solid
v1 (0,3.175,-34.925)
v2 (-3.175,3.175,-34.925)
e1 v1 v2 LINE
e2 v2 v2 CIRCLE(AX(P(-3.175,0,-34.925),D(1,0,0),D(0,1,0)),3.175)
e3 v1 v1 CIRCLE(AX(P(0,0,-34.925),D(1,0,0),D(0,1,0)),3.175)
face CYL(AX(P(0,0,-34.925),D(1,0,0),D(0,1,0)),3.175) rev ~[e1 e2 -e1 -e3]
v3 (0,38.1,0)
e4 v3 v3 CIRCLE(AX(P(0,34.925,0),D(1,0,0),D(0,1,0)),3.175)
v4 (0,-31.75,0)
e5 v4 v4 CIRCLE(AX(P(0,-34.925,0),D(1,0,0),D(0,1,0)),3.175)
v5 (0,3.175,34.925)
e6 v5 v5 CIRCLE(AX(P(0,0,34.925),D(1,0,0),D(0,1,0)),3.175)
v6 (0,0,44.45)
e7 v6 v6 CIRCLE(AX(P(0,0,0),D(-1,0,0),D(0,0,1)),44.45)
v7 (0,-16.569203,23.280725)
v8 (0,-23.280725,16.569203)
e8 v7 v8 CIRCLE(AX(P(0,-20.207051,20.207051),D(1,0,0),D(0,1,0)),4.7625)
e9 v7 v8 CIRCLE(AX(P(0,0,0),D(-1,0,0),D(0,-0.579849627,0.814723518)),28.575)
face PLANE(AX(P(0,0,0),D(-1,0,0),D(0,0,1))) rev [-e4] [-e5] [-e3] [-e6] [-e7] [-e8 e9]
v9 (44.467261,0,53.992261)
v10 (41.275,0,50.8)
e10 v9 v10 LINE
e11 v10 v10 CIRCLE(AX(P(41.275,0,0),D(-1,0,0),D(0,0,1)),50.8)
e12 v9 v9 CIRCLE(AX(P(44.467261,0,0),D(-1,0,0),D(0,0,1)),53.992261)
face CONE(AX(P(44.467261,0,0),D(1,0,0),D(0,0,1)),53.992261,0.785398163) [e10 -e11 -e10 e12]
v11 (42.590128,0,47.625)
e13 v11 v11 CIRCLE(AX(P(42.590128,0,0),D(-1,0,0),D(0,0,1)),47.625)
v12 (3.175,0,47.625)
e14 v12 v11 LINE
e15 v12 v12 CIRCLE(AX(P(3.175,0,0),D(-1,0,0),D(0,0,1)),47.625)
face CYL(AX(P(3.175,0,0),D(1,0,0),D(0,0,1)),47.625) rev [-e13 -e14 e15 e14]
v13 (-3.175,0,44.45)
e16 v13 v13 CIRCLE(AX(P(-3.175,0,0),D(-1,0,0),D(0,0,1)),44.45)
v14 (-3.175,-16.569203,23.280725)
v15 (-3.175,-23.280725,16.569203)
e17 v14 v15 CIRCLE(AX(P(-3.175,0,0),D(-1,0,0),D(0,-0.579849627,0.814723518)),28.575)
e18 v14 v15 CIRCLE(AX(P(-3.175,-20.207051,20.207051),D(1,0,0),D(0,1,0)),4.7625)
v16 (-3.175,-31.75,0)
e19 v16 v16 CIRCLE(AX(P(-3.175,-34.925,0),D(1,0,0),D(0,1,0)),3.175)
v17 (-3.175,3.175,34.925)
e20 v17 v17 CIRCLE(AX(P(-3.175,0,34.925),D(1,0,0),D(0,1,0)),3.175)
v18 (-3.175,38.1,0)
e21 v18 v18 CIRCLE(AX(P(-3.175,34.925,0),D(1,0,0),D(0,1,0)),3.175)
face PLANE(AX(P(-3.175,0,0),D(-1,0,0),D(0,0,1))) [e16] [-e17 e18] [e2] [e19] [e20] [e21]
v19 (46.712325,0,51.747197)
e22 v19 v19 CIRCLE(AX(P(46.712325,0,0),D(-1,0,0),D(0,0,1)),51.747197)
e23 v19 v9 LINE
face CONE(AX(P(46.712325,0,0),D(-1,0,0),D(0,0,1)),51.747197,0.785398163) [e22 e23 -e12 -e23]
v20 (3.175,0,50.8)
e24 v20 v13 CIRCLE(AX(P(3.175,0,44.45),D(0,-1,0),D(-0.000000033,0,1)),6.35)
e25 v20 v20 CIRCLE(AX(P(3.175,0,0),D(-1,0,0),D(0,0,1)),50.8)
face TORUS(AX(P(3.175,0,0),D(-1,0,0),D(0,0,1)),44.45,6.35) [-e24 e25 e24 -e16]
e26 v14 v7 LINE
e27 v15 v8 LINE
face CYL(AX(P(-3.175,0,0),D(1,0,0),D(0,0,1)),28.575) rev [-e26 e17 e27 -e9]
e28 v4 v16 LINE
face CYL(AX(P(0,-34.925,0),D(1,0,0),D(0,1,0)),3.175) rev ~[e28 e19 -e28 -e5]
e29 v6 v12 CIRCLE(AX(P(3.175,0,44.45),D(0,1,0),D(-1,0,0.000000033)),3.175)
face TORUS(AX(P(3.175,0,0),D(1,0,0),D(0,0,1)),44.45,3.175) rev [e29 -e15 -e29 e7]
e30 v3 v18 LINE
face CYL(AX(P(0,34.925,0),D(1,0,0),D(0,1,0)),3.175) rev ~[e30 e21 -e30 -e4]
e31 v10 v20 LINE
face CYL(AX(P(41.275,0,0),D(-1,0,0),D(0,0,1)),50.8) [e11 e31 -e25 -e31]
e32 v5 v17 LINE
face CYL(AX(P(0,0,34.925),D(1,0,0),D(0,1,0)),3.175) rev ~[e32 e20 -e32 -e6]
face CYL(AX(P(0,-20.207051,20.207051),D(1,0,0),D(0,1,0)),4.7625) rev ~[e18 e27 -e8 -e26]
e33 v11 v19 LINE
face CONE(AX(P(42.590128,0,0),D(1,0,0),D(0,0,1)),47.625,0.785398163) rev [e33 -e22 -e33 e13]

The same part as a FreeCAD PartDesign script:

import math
import FreeCAD as App
import Part
import Sketcher
from FreeCAD import Vector
Q = App.Units.Quantity

doc = App.newDocument("Part")
body = doc.addObject("PartDesign::Body", "Body")

sketch1 = body.newObject("Sketcher::SketchObject", "Sketch")
sketch1.AttachmentSupport = (doc.getObject("XZ_Plane"), [""])
sketch1.MapMode = "FlatFace"
sketch1.addGeometry([
    Part.LineSegment(Vector(0, 28.6, 0), Vector(0, 44.5, 0)),
    Part.ArcOfCircle(Part.Circle(Vector(3.2, 44.4, 0), Vector(0, 0, 1), 3.2), math.radians(90), math.radians(180)),
    Part.LineSegment(Vector(3.2, 47.6, 0), Vector(42.6, 47.6, 0)),
    Part.LineSegment(Vector(42.6, 47.6, 0), Vector(46.7, 51.7, 0)),
    Part.LineSegment(Vector(46.7, 51.7, 0), Vector(44.5, 54, 0)),
    Part.LineSegment(Vector(44.5, 54, 0), Vector(41.3, 50.8, 0)),
    Part.LineSegment(Vector(41.3, 50.8, 0), Vector(3.2, 50.8, 0)),
    Part.ArcOfCircle(Part.Circle(Vector(3.2, 44.4, 0), Vector(0, 0, 1), 6.4), math.radians(90), math.radians(180)),
    Part.LineSegment(Vector(-3.2, 44.5, 0), Vector(-3.2, 28.6, 0)),
    Part.LineSegment(Vector(-3.2, 28.6, 0), Vector(0, 28.6, 0)),
], False)
sketch1.addConstraint([
    Sketcher.Constraint("Tangent", 0, 2, 1, 2),
    Sketcher.Constraint("Tangent", 1, 1, 2, 1),
    Sketcher.Constraint("Coincident", 2, 2, 3, 1),
    Sketcher.Constraint("Coincident", 3, 2, 4, 1),
    Sketcher.Constraint("Coincident", 4, 2, 5, 1),
    Sketcher.Constraint("Coincident", 5, 2, 6, 1),
    Sketcher.Constraint("Tangent", 6, 2, 7, 1),
    Sketcher.Constraint("Tangent", 7, 2, 8, 1),
    Sketcher.Constraint("Coincident", 8, 2, 9, 1),
    Sketcher.Constraint("Coincident", 9, 2, 0, 1),
    Sketcher.Constraint("Vertical", 0),
    Sketcher.Constraint("Horizontal", 2),
    Sketcher.Constraint("Horizontal", 6),
    Sketcher.Constraint("Vertical", 8),
    Sketcher.Constraint("Horizontal", 9),
    Sketcher.Constraint("Coincident", 7, 3, 1, 3),
    Sketcher.Constraint("PointOnObject", 0, 2, -2),
    Sketcher.Constraint("Perpendicular", 3, 4),
    Sketcher.Constraint("Perpendicular", 4, 5),
    Sketcher.Constraint("Radius", 7, Q("0.25 in")),
    Sketcher.Constraint("DistanceX", 6, 2, 6, 1, Q("1.5 in")),
    Sketcher.Constraint("DistanceY", -1, 1, 5, 2, Q("2 in")),
    Sketcher.Constraint("Angle", 3, Q("45 deg")),
    Sketcher.Constraint("Radius", 1, Q("0.125 in")),
    Sketcher.Constraint("DistanceY", 0, 1, 0, 2, Q("0.625 in")),
    Sketcher.Constraint("Distance", 4, Q("0.125 in")),
    Sketcher.Constraint("Distance", 5, Q("4.514539 mm")),
])
revolution = body.newObject("PartDesign::Revolution", "Revolution")
revolution.Profile = sketch1
revolution.ReferenceAxis = (sketch1, ["H_Axis"])
revolution.Angle = 360

sketch2 = body.newObject("Sketcher::SketchObject", "Sketch001")
sketch2.AttachmentSupport = (doc.getObject("YZ_Plane"), [""])
sketch2.MapMode = "FlatFace"
sketch2.addGeometry([
    Part.Circle(Vector(0, 34.9, 0), Vector(0, 0, 1), 3.2),
    Part.Circle(Vector(-34.9, 0, 0), Vector(0, 0, 1), 3.2),
    Part.Circle(Vector(0, -34.9, 0), Vector(0, 0, 1), 3.2),
    Part.Circle(Vector(34.9, 0, 0), Vector(0, 0, 1), 3.2),
    Part.Circle(Vector(-20.2, 20.2, 0), Vector(0, 0, 1), 4.8),
], False)
sketch2.addConstraint([
    Sketcher.Constraint("Equal", 0, 1),
    Sketcher.Constraint("Equal", 1, 2),
    Sketcher.Constraint("Equal", 2, 3),
    Sketcher.Constraint("Symmetric", 0, 3, 2, 3, -1, 1),
    Sketcher.Constraint("Symmetric", 1, 3, 3, 3, -1, 1),
    Sketcher.Constraint("PointOnObject", 0, 3, -2),
    Sketcher.Constraint("PointOnObject", 1, 3, -1),
    Sketcher.Constraint("Diameter", 0, Q("0.25 in")),
    Sketcher.Constraint("Diameter", 4, Q("0.375 in")),
    Sketcher.Constraint("DistanceY", 2, 3, 0, 3, Q("2.75 in")),
    Sketcher.Constraint("DistanceX", 1, 3, 3, 3, Q("2.75 in")),
    Sketcher.Constraint("DistanceX", 4, 3, -1, 1, Q("20.207051 mm")),
    Sketcher.Constraint("DistanceY", -1, 1, 4, 3, Q("20.207051 mm")),
])
pocket1 = body.newObject("PartDesign::Pocket", "Pocket")
pocket1.Profile = sketch2
pocket1.Length = Q("0.25 in")
pocket1.Midplane = True

doc.recompute()
